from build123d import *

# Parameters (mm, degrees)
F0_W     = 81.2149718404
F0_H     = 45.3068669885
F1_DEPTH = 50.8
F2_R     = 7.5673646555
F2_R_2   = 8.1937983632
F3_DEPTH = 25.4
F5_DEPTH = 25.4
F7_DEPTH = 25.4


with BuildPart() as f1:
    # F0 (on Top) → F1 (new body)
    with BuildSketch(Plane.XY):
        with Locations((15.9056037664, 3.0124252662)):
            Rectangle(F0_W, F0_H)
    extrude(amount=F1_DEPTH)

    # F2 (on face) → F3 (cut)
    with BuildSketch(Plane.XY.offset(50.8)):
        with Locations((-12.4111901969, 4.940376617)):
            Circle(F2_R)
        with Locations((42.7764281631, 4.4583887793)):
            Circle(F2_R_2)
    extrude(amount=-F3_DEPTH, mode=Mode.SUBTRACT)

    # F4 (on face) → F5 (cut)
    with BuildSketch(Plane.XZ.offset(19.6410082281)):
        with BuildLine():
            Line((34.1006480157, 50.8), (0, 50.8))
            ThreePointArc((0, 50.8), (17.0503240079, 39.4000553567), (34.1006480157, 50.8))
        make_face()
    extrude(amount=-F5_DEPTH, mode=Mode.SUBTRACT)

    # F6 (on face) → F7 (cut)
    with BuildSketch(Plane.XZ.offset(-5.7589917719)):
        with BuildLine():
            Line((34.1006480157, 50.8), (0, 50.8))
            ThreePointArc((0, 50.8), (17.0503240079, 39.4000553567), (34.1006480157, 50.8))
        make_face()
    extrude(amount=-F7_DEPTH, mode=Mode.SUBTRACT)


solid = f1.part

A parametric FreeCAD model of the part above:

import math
import FreeCAD as App
import Part
import Sketcher
from FreeCAD import Vector
Q = App.Units.Quantity

doc = App.newDocument("Part")
params = doc.addObject("Spreadsheet::Sheet", "Params")
for row, (alias, value) in enumerate([
    ("pad1_length", "2 in"),
    ("pocket1_length", "1 in"),
    ("pocket2_length", "1 in"),
    ("pocket3_length", "1 in"),
], start=1):
    params.set(f"A{row}", alias)
    params.set(f"B{row}", "=" + value)
    params.setAlias(f"B{row}", alias)

body = doc.addObject("PartDesign::Body", "Body")

sketch1 = body.newObject("Sketcher::SketchObject", "Sketch")
sketch1.AttachmentSupport = (doc.getObject("XY_Plane"), [""])
sketch1.MapMode = "FlatFace"
sketch1.addGeometry(Part.LineSegment(Vector(-24.701882, 25.665859, 0), Vector(-24.701882, -19.641008, 0)), False)
sketch1.addGeometry(Part.LineSegment(Vector(-24.701882, -19.641008, 0), Vector(56.51309, -19.641008, 0)), False)
sketch1.addGeometry(Part.LineSegment(Vector(56.51309, -19.641008, 0), Vector(56.51309, 25.665859, 0)), False)
sketch1.addGeometry(Part.LineSegment(Vector(56.51309, 25.665859, 0), Vector(-24.701882, 25.665859, 0)), False)
sketch1.addConstraint(Sketcher.Constraint("Coincident", 0, 2, 1, 1))
sketch1.addConstraint(Sketcher.Constraint("Coincident", 1, 2, 2, 1))
sketch1.addConstraint(Sketcher.Constraint("Coincident", 2, 2, 3, 1))
sketch1.addConstraint(Sketcher.Constraint("Coincident", 3, 2, 0, 1))
sketch1.addConstraint(Sketcher.Constraint("Vertical", 0))
sketch1.addConstraint(Sketcher.Constraint("Horizontal", 1))
sketch1.addConstraint(Sketcher.Constraint("Vertical", 2))
sketch1.addConstraint(Sketcher.Constraint("Horizontal", 3))
sketch1.addConstraint(Sketcher.Constraint("DistanceX", 1, 1, 1, 2, Q("81.214972 mm")))
sketch1.addConstraint(Sketcher.Constraint("DistanceY", 0, 2, 0, 1, Q("45.306867 mm")))
sketch1.addConstraint(Sketcher.Constraint("DistanceY", 0, 2, -1, 1, Q("19.641008 mm")))
sketch1.addConstraint(Sketcher.Constraint("DistanceX", -1, 1, 1, 2, Q("56.51309 mm")))
pad1 = body.newObject("PartDesign::Pad", "Pad")
pad1.Profile = sketch1
pad1.setExpression("Length", "Params.pad1_length")

sketch2 = body.newObject("Sketcher::SketchObject", "Sketch001")
sketch2.AttachmentSupport = (doc.getObject("XY_Plane"), [""])
sketch2.MapMode = "FlatFace"
sketch2.AttachmentOffset = App.Placement(Vector(0, 0, 2 * 25.4), App.Rotation())
sketch2.addGeometry(Part.Circle(Vector(-12.41119, 4.940377, 0), Vector(0, 0, 1), 7.567365), False)
sketch2.addGeometry(Part.Circle(Vector(42.776428, 4.458389, 0), Vector(0, 0, 1), 8.193798), False)
sketch2.addConstraint(Sketcher.Constraint("Diameter", 0, Q("15.134729 mm")))
sketch2.addConstraint(Sketcher.Constraint("Diameter", 1, Q("16.387597 mm")))
sketch2.addConstraint(Sketcher.Constraint("DistanceX", 0, 3, -1, 1, Q("12.41119 mm")))
sketch2.addConstraint(Sketcher.Constraint("DistanceX", -1, 1, 1, 3, Q("42.776428 mm")))
sketch2.addConstraint(Sketcher.Constraint("DistanceY", -1, 1, 1, 3, Q("4.458389 mm")))
sketch2.addConstraint(Sketcher.Constraint("DistanceY", -1, 1, 0, 3, Q("4.940377 mm")))
pocket1 = body.newObject("PartDesign::Pocket", "Pocket")
pocket1.Profile = sketch2
pocket1.setExpression("Length", "Params.pocket1_length")

sketch3 = body.newObject("Sketcher::SketchObject", "Sketch002")
sketch3.AttachmentSupport = (doc.getObject("XZ_Plane"), [""])
sketch3.MapMode = "FlatFace"
sketch3.AttachmentOffset = App.Placement(Vector(0, 0, 19.641008), App.Rotation())
sketch3.addGeometry(Part.LineSegment(Vector(34.100648, 50.8, 0), Vector(0, 50.8, 0)), False)
sketch3.addGeometry(Part.ArcOfCircle(Part.Circle(Vector(17.050324, 57.850684, 0), Vector(0, 0, 1), 18.450628), math.radians(-157.53383), math.radians(-22.46617)), False)
sketch3.addConstraint(Sketcher.Constraint("Coincident", 0, 1, 1, 2))
sketch3.addConstraint(Sketcher.Constraint("Coincident", 1, 1, 0, 2))
sketch3.addConstraint(Sketcher.Constraint("Horizontal", 0))
sketch3.addConstraint(Sketcher.Constraint("PointOnObject", 1, 1, -2))
sketch3.addConstraint(Sketcher.Constraint("DistanceY", -1, 1, 0, 1, Q("2 in")))
sketch3.addConstraint(Sketcher.Constraint("Radius", 1, Q("18.450628 mm")))
sketch3.addConstraint(Sketcher.Constraint("DistanceX", 0, 2, 0, 1, Q("34.100648 mm")))
pocket2 = body.newObject("PartDesign::Pocket", "Pocket001")
pocket2.Profile = sketch3
pocket2.setExpression("Length", "Params.pocket2_length")

sketch4 = body.newObject("Sketcher::SketchObject", "Sketch003")
sketch4.AttachmentSupport = (doc.getObject("XZ_Plane"), [""])
sketch4.MapMode = "FlatFace"
sketch4.AttachmentOffset = App.Placement(Vector(0, 0, -5.758992), App.Rotation())
sketch4.addGeometry(Part.LineSegment(Vector(34.100648, 50.8, 0), Vector(0, 50.8, 0)), False)
sketch4.addGeometry(Part.ArcOfCircle(Part.Circle(Vector(17.050324, 57.850684, 0), Vector(0, 0, 1), 18.450628), math.radians(-157.53383), math.radians(-22.46617)), False)
sketch4.addConstraint(Sketcher.Constraint("Coincident", 0, 1, 1, 2))
sketch4.addConstraint(Sketcher.Constraint("Coincident", 1, 1, 0, 2))
sketch4.addConstraint(Sketcher.Constraint("Horizontal", 0))
sketch4.addConstraint(Sketcher.Constraint("PointOnObject", 1, 1, -2))
sketch4.addConstraint(Sketcher.Constraint("DistanceY", -1, 1, 0, 1, Q("2 in")))
sketch4.addConstraint(Sketcher.Constraint("Radius", 1, Q("18.450628 mm")))
sketch4.addConstraint(Sketcher.Constraint("DistanceX", 0, 2, 0, 1, Q("34.100648 mm")))
pocket3 = body.newObject("PartDesign::Pocket", "Pocket002")
pocket3.Profile = sketch4
pocket3.setExpression("Length", "Params.pocket3_length")

doc.recompute()
